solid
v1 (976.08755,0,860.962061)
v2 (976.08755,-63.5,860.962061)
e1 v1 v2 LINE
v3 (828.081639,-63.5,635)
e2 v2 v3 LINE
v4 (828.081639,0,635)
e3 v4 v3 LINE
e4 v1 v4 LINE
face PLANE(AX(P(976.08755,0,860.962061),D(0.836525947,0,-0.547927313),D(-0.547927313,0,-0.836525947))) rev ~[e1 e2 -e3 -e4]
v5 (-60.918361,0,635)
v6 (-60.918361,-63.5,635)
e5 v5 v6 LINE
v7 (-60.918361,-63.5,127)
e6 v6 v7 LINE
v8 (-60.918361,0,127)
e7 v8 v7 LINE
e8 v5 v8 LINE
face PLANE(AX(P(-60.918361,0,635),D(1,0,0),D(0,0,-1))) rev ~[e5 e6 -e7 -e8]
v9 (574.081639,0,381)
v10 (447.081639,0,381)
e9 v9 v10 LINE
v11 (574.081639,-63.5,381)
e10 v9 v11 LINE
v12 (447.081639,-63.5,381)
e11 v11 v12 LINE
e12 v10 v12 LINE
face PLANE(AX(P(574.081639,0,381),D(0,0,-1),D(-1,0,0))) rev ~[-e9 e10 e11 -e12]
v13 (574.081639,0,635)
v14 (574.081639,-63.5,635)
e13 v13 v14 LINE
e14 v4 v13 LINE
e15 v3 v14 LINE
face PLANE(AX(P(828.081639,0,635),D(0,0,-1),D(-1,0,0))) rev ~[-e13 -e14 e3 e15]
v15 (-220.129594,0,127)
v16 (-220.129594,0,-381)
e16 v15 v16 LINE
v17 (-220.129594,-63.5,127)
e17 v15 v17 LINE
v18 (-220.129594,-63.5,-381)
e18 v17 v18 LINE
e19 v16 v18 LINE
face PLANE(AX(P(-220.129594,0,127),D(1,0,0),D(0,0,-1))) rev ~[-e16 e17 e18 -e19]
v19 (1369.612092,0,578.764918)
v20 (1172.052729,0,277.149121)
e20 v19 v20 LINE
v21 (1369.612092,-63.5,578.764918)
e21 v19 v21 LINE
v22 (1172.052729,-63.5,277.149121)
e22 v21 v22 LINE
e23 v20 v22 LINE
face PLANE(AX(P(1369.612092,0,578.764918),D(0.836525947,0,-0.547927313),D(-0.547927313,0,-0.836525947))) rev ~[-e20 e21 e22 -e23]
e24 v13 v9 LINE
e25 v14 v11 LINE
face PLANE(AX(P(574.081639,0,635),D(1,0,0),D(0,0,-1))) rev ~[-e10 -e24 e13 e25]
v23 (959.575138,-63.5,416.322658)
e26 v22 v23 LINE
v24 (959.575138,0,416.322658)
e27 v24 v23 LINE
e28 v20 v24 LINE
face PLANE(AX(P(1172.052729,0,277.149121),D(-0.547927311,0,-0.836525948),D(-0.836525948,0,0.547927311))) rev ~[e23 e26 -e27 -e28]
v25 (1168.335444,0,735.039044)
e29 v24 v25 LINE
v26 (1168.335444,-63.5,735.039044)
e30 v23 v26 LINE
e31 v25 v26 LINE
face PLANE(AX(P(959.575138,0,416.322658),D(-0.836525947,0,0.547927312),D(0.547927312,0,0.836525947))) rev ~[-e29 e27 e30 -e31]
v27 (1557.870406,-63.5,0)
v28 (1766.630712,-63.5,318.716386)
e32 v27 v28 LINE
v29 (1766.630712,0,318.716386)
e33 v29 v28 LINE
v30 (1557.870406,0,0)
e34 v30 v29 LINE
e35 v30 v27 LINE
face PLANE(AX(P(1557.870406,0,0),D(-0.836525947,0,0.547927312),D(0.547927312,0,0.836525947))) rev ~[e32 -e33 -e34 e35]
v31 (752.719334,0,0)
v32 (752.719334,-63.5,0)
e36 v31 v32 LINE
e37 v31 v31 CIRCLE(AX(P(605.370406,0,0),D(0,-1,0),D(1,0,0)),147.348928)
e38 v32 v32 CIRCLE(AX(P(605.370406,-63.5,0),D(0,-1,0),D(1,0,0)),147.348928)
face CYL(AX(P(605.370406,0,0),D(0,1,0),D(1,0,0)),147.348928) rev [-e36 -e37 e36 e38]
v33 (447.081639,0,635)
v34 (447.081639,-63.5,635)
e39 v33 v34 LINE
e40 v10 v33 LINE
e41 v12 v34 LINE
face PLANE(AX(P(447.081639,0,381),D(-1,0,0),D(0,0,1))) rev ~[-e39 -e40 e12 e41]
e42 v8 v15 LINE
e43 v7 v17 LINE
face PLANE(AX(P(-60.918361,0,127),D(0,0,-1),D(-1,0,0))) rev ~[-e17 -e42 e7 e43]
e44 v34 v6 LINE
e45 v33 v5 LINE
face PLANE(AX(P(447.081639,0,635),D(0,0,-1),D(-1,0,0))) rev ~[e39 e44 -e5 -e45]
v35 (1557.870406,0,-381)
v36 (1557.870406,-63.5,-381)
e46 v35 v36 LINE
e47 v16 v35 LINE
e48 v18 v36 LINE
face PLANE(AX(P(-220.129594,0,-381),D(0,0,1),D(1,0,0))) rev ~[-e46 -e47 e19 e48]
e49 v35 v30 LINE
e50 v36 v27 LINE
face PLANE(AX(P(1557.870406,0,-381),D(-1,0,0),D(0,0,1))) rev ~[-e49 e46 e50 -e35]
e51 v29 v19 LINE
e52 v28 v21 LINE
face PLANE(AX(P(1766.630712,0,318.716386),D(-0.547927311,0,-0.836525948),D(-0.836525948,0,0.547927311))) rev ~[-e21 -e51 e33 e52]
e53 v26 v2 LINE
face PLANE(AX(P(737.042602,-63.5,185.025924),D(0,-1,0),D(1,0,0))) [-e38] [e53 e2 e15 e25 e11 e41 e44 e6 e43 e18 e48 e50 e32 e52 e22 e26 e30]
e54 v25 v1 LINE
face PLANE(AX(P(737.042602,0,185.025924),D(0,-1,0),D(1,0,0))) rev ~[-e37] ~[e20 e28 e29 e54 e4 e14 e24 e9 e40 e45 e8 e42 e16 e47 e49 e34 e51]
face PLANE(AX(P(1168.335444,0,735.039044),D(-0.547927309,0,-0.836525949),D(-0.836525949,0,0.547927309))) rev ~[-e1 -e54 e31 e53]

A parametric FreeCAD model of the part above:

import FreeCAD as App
import Part
import Sketcher
Q = App.Units.Quantity

doc = App.newDocument("Part")
body = doc.addObject("PartDesign::Body", "Body")

sketch1 = body.newObject("Sketcher::SketchObject", "Sketch")
sketch1.AttachmentSupport = (doc.getObject("XZ_Plane"), [""])
sketch1.MapMode = "FlatFace"
sketch1.addGeometry([
    Part.LineSegment(App.Vector(447.081639, 635, 0), App.Vector(-60.918361, 635, 0)),
    Part.LineSegment(App.Vector(-60.918361, 635, 0), App.Vector(-60.918361, 127, 0)),
    Part.LineSegment(App.Vector(-60.918361, 127, 0), App.Vector(-220.129594, 127, 0)),
    Part.LineSegment(App.Vector(-220.129594, 127, 0), App.Vector(-220.129594, -381, 0)),
    Part.LineSegment(App.Vector(-220.129594, -381, 0), App.Vector(1557.870406, -381, 0)),
    Part.LineSegment(App.Vector(1557.870406, -381, 0), App.Vector(1557.870406, 0, 0)),
    Part.LineSegment(App.Vector(1557.870406, 0, 0), App.Vector(1766.630712, 318.716386, 0)),
    Part.LineSegment(App.Vector(1766.630712, 318.716386, 0), App.Vector(1369.612092, 578.764918, 0)),
    Part.LineSegment(App.Vector(1369.612092, 578.764918, 0), App.Vector(1172.052729, 277.149121, 0)),
    Part.LineSegment(App.Vector(1172.052729, 277.149121, 0), App.Vector(959.575138, 416.322658, 0)),
    Part.LineSegment(App.Vector(959.575138, 416.322658, 0), App.Vector(1168.335444, 735.039044, 0)),
    Part.LineSegment(App.Vector(1168.335444, 735.039044, 0), App.Vector(976.08755, 860.962061, 0)),
    Part.LineSegment(App.Vector(976.08755, 860.962061, 0), App.Vector(828.081639, 635, 0)),
    Part.LineSegment(App.Vector(828.081639, 635, 0), App.Vector(574.081639, 635, 0)),
    Part.LineSegment(App.Vector(574.081639, 635, 0), App.Vector(574.081639, 381, 0)),
    Part.LineSegment(App.Vector(574.081639, 381, 0), App.Vector(447.081639, 381, 0)),
    Part.LineSegment(App.Vector(447.081639, 381, 0), App.Vector(447.081639, 635, 0)),
    Part.Circle(App.Vector(605.370406, 0, 0), App.Vector(0, 0, 1), 147.348928),
], False)
sketch1.addConstraint([
    Sketcher.Constraint("Coincident", 0, 2, 1, 1),
    Sketcher.Constraint("Coincident", 1, 2, 2, 1),
    Sketcher.Constraint("Coincident", 2, 2, 3, 1),
    Sketcher.Constraint("Coincident", 3, 2, 4, 1),
    Sketcher.Constraint("Coincident", 4, 2, 5, 1),
    Sketcher.Constraint("Coincident", 5, 2, 6, 1),
    Sketcher.Constraint("Coincident", 6, 2, 7, 1),
    Sketcher.Constraint("Coincident", 7, 2, 8, 1),
    Sketcher.Constraint("Coincident", 8, 2, 9, 1),
    Sketcher.Constraint("Coincident", 9, 2, 10, 1),
    Sketcher.Constraint("Coincident", 10, 2, 11, 1),
    Sketcher.Constraint("Coincident", 11, 2, 12, 1),
    Sketcher.Constraint("Coincident", 12, 2, 13, 1),
    Sketcher.Constraint("Coincident", 13, 2, 14, 1),
    Sketcher.Constraint("Coincident", 14, 2, 15, 1),
    Sketcher.Constraint("Coincident", 15, 2, 16, 1),
    Sketcher.Constraint("Coincident", 16, 2, 0, 1),
    Sketcher.Constraint("Horizontal", 0),
    Sketcher.Constraint("Vertical", 1),
    Sketcher.Constraint("Horizontal", 2),
    Sketcher.Constraint("Vertical", 3),
    Sketcher.Constraint("Horizontal", 4),
    Sketcher.Constraint("Vertical", 5),
    Sketcher.Constraint("Horizontal", 13),
    Sketcher.Constraint("Vertical", 14),
    Sketcher.Constraint("Horizontal", 15),
    Sketcher.Constraint("Vertical", 16),
    Sketcher.Constraint("PointOnObject", 17, 3, -1),
    Sketcher.Constraint("PointOnObject", 5, 2, -1),
    Sketcher.Constraint("Perpendicular", 6, 7),
    Sketcher.Constraint("Perpendicular", 7, 8),
    Sketcher.Constraint("Perpendicular", 8, 9),
    Sketcher.Constraint("Perpendicular", 9, 10),
    Sketcher.Constraint("Perpendicular", 10, 11),
    Sketcher.Constraint("Perpendicular", 11, 12),
    Sketcher.Constraint("Horizontal", 0, 2, 12, 2),
    Sketcher.Constraint("Equal", 0, 1),
    Sketcher.Constraint("Equal", 1, 3),
    Sketcher.Constraint("Equal", 13, 14),
    Sketcher.Constraint("Equal", 6, 10),
    Sketcher.Constraint("DistanceX", 0, 2, 0, 1, Q("20 in")),
    Sketcher.Constraint("DistanceX", 4, 1, 4, 2, Q("70 in")),
    Sketcher.Constraint("DistanceX", 13, 2, 13, 1, Q("10 in")),
    Sketcher.Constraint("DistanceX", 15, 2, 15, 1, Q("5 in")),
    Sketcher.Constraint("DistanceY", 5, 1, 5, 2, Q("15 in")),
    Sketcher.Constraint("Distance", 6, Q("15 in")),
    Sketcher.Constraint("Distance", 9, Q("10 in")),
    Sketcher.Constraint("DistanceX", 2, 2, 17, 3, Q("32.5 in")),
    Sketcher.Constraint("Diameter", 17, 294.697856),
    Sketcher.Constraint("DistanceX", 12, 2, 9, 2, 131.493499),
    Sketcher.Constraint("Distance", 7, 474.60407),
    Sketcher.Constraint("Distance", 8, 360.557611),
    Sketcher.Constraint("Distance", 11, 229.817012),
    Sketcher.Constraint("DistanceX", 0, 2, -1, 1, 60.918361),
])
pad1 = body.newObject("PartDesign::Pad", "Pad")
pad1.Profile = sketch1
pad1.Length = Q("2.5 in")

doc.recompute()
